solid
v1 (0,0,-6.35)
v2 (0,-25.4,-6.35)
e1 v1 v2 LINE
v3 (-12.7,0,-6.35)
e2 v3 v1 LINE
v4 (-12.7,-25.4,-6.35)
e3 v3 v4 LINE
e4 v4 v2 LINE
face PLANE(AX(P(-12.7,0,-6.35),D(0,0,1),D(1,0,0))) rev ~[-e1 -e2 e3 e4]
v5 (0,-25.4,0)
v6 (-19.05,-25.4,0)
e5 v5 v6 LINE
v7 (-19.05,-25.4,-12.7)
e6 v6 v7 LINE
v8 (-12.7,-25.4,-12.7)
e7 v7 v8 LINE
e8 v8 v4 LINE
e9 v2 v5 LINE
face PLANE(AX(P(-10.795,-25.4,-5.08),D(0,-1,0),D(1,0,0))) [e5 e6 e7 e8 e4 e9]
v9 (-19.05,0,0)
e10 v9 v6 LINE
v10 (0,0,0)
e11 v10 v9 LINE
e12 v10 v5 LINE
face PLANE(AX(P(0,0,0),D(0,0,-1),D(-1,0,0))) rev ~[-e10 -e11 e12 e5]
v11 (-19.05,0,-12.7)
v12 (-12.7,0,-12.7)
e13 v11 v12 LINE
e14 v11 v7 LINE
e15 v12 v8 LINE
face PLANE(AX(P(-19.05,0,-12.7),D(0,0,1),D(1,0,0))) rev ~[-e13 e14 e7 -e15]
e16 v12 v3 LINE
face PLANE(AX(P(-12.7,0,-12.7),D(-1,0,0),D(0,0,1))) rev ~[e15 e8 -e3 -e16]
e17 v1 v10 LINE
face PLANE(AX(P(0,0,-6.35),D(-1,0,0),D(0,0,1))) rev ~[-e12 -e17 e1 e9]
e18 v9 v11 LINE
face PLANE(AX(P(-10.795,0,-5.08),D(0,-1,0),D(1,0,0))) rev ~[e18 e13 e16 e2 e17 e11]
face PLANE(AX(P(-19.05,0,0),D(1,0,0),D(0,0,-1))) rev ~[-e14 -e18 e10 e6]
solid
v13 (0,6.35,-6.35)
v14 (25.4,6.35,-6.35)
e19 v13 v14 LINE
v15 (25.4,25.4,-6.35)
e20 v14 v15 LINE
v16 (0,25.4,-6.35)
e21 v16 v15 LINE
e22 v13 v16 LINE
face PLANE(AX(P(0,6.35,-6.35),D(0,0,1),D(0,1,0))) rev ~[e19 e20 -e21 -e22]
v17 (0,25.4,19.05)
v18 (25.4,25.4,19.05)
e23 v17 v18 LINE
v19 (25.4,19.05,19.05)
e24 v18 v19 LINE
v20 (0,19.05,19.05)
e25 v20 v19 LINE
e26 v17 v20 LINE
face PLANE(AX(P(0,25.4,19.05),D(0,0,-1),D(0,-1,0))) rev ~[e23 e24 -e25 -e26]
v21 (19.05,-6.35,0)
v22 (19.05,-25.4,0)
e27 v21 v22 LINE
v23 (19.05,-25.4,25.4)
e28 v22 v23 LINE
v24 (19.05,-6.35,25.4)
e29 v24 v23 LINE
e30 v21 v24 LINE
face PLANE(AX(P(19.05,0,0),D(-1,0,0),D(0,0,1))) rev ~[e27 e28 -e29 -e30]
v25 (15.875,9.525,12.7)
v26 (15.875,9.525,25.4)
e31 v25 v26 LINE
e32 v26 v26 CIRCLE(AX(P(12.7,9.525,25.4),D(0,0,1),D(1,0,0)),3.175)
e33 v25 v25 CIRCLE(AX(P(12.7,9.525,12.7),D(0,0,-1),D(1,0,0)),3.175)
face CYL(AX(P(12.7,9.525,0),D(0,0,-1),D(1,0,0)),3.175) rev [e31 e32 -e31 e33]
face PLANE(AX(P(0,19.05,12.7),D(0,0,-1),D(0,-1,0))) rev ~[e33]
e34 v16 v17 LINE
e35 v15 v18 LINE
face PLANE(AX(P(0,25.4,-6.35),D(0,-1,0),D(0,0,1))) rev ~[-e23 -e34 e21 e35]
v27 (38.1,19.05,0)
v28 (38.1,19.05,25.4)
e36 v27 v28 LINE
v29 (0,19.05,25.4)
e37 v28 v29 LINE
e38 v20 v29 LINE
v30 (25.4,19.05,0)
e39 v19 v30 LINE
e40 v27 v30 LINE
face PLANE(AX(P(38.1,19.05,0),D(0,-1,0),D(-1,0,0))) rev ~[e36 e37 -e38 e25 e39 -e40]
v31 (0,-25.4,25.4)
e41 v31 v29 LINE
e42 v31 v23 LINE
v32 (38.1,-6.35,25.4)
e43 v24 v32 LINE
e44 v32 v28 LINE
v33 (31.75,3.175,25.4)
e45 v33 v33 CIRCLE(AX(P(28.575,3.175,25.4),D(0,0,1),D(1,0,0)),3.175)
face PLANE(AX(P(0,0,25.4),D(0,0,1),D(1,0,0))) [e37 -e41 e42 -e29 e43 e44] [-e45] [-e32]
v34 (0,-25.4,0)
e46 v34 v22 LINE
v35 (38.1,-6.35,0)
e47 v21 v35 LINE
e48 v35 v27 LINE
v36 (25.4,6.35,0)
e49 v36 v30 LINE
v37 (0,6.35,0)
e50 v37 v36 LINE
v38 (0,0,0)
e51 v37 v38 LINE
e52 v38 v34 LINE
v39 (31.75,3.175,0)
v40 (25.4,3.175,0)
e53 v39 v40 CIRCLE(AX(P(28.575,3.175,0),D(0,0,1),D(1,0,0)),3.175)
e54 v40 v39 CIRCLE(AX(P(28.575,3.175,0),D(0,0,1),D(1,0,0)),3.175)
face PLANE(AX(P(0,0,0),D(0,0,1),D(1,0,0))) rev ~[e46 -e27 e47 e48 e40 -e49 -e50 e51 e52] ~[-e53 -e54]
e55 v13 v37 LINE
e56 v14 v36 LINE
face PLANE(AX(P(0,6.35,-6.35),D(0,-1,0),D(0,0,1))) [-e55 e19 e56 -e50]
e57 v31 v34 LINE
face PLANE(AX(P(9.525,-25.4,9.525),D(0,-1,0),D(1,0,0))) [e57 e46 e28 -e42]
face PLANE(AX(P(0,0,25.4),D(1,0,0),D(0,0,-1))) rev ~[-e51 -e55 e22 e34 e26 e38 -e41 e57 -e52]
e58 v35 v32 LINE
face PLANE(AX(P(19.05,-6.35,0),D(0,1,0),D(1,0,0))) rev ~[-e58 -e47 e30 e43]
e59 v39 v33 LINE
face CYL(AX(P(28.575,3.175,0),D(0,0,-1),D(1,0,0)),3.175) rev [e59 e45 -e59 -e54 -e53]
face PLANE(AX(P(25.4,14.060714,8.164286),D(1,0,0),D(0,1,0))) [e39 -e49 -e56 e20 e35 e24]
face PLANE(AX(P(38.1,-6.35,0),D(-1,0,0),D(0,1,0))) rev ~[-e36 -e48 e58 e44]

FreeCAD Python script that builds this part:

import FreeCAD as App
import Part
import Sketcher
Q = App.Units.Quantity


def add_polygon(sketch, points):
    """Adds a closed chain of lines whose ends are joined by coincident constraints."""
    first, n = sketch.GeometryCount, len(points)
    for a, b in zip(points, points[1:] + points[:1]):
        sketch.addGeometry(Part.LineSegment(App.Vector(*a, 0), App.Vector(*b, 0)), False)
    for i in range(n):
        sketch.addConstraint(Sketcher.Constraint("Coincident", first + i, 2, first + (i + 1) % n, 1))

doc = App.newDocument("Part")
params = doc.addObject("Spreadsheet::Sheet", "Params")
for row, (alias, value) in enumerate([
    ("sketch1_diameter", "0.25 in"),
    ("sketch1_height", "1 in"),
    ("sketch1_width", "1.5 in"),
    ("pad1_length", "1 in"),
    ("sketch2_height", "1 in"),
    ("sketch2_width", "0.5 in"),
    ("pad2_length", "1 in"),
    ("sketch3_height", "1 in"),
    ("sketch3_height2", "0.5 in"),
    ("pad3_length", "1 in"),
], start=1):
    params.set(f"A{row}", alias)
    params.set(f"B{row}", "=" + value)
    params.setAlias(f"B{row}", alias)

body = doc.addObject("PartDesign::Body", "Body")
body.AllowCompound = True

sketch1 = body.newObject("Sketcher::SketchObject", "Sketch")
sketch1.AttachmentSupport = (doc.getObject("XY_Plane"), [""])
sketch1.MapMode = "FlatFace"
add_polygon(sketch1, [(0, 19.05), (0, 0), (19.05, 0), (19.05, -6.35), (38.1, -6.35), (38.1, 19.05)])
sketch1.addGeometry(Part.Circle(App.Vector(28.575, 3.175, 0), App.Vector(0, 0, 1), 3.175), False)
sketch1.addGeometry(Part.Circle(App.Vector(12.7, 9.525, 0), App.Vector(0, 0, 1), 3.175), False)
sketch1.addConstraint(Sketcher.Constraint("Vertical", 0))
sketch1.addConstraint(Sketcher.Constraint("Horizontal", 1))
sketch1.addConstraint(Sketcher.Constraint("Vertical", 2))
sketch1.addConstraint(Sketcher.Constraint("Horizontal", 3))
sketch1.addConstraint(Sketcher.Constraint("Vertical", 4))
sketch1.addConstraint(Sketcher.Constraint("Horizontal", 5))
sketch1.addConstraint(Sketcher.Constraint("Coincident", 0, 2, -1, 1))
sketch1.addConstraint(Sketcher.Constraint("Equal", 6, 7))
sketch1.addConstraint(Sketcher.Constraint("Equal", 1, 3))
sketch1.addConstraint(Sketcher.Constraint("Equal", 3, 0))
sketch1.addConstraint(Sketcher.Constraint("Diameter", 6, Q("0.25 in")))
sketch1.addConstraint(Sketcher.Constraint("DistanceY", 4, 1, 4, 2, Q("1 in")))
sketch1.addConstraint(Sketcher.Constraint("DistanceX", 5, 2, 5, 1, Q("1.5 in")))
sketch1.addConstraint(Sketcher.Constraint("DistanceX", 7, 3, 3, 2, Q("1 in")))
sketch1.addConstraint(Sketcher.Constraint("DistanceY", 6, 3, 7, 3, Q("0.25 in")))
sketch1.addConstraint(Sketcher.Constraint("DistanceX", -1, 1, 6, 3, Q("1.125 in")))
sketch1.addConstraint(Sketcher.Constraint("DistanceY", -1, 1, 6, 3, Q("0.125 in")))
sketch1.setExpression("Constraints[16]", "Params.sketch1_diameter")
sketch1.setExpression("Constraints[17]", "Params.sketch1_height")
sketch1.setExpression("Constraints[18]", "Params.sketch1_width")
pad1 = body.newObject("PartDesign::Pad", "Pad")
pad1.Profile = sketch1
pad1.setExpression("Length", "Params.pad1_length")

sketch2 = body.newObject("Sketcher::SketchObject", "Sketch001")
sketch2.AttachmentSupport = (doc.getObject("XZ_Plane"), [""])
sketch2.MapMode = "FlatFace"
add_polygon(sketch2, [(0, 0), (19.05, 0), (19.05, 25.4), (0, 25.4)])
add_polygon(sketch2, [(0, -6.35), (0, 0), (-19.05, 0), (-19.05, -12.7), (-12.7, -12.7), (-12.7, -6.35)])
sketch2.addConstraint(Sketcher.Constraint("Horizontal", 0))
sketch2.addConstraint(Sketcher.Constraint("Vertical", 1))
sketch2.addConstraint(Sketcher.Constraint("Horizontal", 2))
sketch2.addConstraint(Sketcher.Constraint("Vertical", 3))
sketch2.addConstraint(Sketcher.Constraint("Vertical", 4))
sketch2.addConstraint(Sketcher.Constraint("Horizontal", 5))
sketch2.addConstraint(Sketcher.Constraint("Vertical", 6))
sketch2.addConstraint(Sketcher.Constraint("Horizontal", 7))
sketch2.addConstraint(Sketcher.Constraint("Vertical", 8))
sketch2.addConstraint(Sketcher.Constraint("Horizontal", 9))
sketch2.addConstraint(Sketcher.Constraint("Coincident", 3, 2, -1, 1))
sketch2.addConstraint(Sketcher.Constraint("Coincident", 4, 2, -1, 1))
sketch2.addConstraint(Sketcher.Constraint("Equal", 2, 5))
sketch2.addConstraint(Sketcher.Constraint("Equal", 7, 4))
sketch2.addConstraint(Sketcher.Constraint("Equal", 9, 6))
sketch2.addConstraint(Sketcher.Constraint("Equal", 4, 8))
sketch2.addConstraint(Sketcher.Constraint("DistanceY", 1, 1, 1, 2, Q("1 in")))
sketch2.addConstraint(Sketcher.Constraint("DistanceX", 9, 1, 9, 2, Q("0.5 in")))
sketch2.setExpression("Constraints[26]", "Params.sketch2_height")
sketch2.setExpression("Constraints[27]", "Params.sketch2_width")
pad2 = body.newObject("PartDesign::Pad", "Pad001")
pad2.Profile = sketch2
pad2.setExpression("Length", "Params.pad2_length")

sketch3 = body.newObject("Sketcher::SketchObject", "Sketch002")
sketch3.AttachmentSupport = (doc.getObject("YZ_Plane"), [""])
sketch3.MapMode = "FlatFace"
add_polygon(sketch3, [(0, 12.7), (0, 0), (6.35, 0), (6.35, -6.35), (25.4, -6.35), (25.4, 19.05), (19.05, 19.05), (19.05, 12.7)])
sketch3.addConstraint(Sketcher.Constraint("Vertical", 0))
sketch3.addConstraint(Sketcher.Constraint("Horizontal", 1))
sketch3.addConstraint(Sketcher.Constraint("Vertical", 2))
sketch3.addConstraint(Sketcher.Constraint("Horizontal", 3))
sketch3.addConstraint(Sketcher.Constraint("Vertical", 4))
sketch3.addConstraint(Sketcher.Constraint("Horizontal", 5))
sketch3.addConstraint(Sketcher.Constraint("Vertical", 6))
sketch3.addConstraint(Sketcher.Constraint("Horizontal", 7))
sketch3.addConstraint(Sketcher.Constraint("Coincident", 0, 2, -1, 1))
sketch3.addConstraint(Sketcher.Constraint("Equal", 1, 5))
sketch3.addConstraint(Sketcher.Constraint("Equal", 5, 2))
sketch3.addConstraint(Sketcher.Constraint("Equal", 2, 6))
sketch3.addConstraint(Sketcher.Constraint("DistanceY", 4, 1, 4, 2, Q("1 in")))
sketch3.addConstraint(Sketcher.Constraint("DistanceY", 0, 2, 0, 1, Q("0.5 in")))
sketch3.addConstraint(Sketcher.Constraint("DistanceX", -1, 1, 3, 2, Q("1 in")))
sketch3.setExpression("Constraints[20]", "Params.sketch3_height")
sketch3.setExpression("Constraints[21]", "Params.sketch3_height2")
pad3 = body.newObject("PartDesign::Pad", "Pad002")
pad3.Profile = sketch3
pad3.setExpression("Length", "Params.pad3_length")

doc.recompute()
